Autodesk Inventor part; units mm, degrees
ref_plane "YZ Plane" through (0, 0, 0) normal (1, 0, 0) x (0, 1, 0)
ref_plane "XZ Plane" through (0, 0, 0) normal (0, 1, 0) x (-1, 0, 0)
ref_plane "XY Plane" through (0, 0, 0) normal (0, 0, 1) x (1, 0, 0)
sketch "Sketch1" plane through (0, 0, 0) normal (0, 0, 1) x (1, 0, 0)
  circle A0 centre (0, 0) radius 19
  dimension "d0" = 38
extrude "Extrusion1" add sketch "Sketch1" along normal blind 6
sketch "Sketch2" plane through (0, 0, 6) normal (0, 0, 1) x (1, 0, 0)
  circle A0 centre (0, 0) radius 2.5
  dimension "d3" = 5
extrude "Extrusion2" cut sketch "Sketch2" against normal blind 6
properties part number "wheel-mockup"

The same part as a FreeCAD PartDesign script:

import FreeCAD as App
import Part
import Sketcher
from FreeCAD import Vector
Q = App.Units.Quantity

doc = App.newDocument("Part")
body = doc.addObject("PartDesign::Body", "Body")

# Sketch on XY plane
sketch1 = doc.addObject("Sketcher::SketchObject", "Sketch")
body.addObject(sketch1)
sketch1.AttachmentSupport = (doc.XY_Plane, [""])
sketch1.MapMode = "FlatFace"
sketch1.addGeometry(Part.Circle(Vector(0, 0, 0), Vector(0, 0, 1), 19), False)
sketch1.addConstraint(Sketcher.Constraint("Coincident", 0, 3, -1, 1))
sketch1.addConstraint(Sketcher.Constraint("Diameter", 0, Q("38 mm")))
pad1 = doc.addObject("PartDesign::Pad", "Pad")
body.addObject(pad1)
pad1.Profile = sketch1
pad1.Length = 6

# Sketch on XY plane
sketch2 = doc.addObject("Sketcher::SketchObject", "Sketch001")
body.addObject(sketch2)
sketch2.AttachmentSupport = (doc.XY_Plane, [""])
sketch2.MapMode = "FlatFace"
sketch2.AttachmentOffset = App.Placement(Vector(0, 0, 6), App.Rotation())
sketch2.addGeometry(Part.Circle(Vector(0, 0, 0), Vector(0, 0, 1), 2.5), False)
sketch2.addConstraint(Sketcher.Constraint("Coincident", 0, 3, -1, 1))
sketch2.addConstraint(Sketcher.Constraint("Diameter", 0, Q("5 mm")))
pocket1 = doc.addObject("PartDesign::Pocket", "Pocket")
body.addObject(pocket1)
pocket1.Profile = sketch2
pocket1.Length = 6

doc.recompute()
